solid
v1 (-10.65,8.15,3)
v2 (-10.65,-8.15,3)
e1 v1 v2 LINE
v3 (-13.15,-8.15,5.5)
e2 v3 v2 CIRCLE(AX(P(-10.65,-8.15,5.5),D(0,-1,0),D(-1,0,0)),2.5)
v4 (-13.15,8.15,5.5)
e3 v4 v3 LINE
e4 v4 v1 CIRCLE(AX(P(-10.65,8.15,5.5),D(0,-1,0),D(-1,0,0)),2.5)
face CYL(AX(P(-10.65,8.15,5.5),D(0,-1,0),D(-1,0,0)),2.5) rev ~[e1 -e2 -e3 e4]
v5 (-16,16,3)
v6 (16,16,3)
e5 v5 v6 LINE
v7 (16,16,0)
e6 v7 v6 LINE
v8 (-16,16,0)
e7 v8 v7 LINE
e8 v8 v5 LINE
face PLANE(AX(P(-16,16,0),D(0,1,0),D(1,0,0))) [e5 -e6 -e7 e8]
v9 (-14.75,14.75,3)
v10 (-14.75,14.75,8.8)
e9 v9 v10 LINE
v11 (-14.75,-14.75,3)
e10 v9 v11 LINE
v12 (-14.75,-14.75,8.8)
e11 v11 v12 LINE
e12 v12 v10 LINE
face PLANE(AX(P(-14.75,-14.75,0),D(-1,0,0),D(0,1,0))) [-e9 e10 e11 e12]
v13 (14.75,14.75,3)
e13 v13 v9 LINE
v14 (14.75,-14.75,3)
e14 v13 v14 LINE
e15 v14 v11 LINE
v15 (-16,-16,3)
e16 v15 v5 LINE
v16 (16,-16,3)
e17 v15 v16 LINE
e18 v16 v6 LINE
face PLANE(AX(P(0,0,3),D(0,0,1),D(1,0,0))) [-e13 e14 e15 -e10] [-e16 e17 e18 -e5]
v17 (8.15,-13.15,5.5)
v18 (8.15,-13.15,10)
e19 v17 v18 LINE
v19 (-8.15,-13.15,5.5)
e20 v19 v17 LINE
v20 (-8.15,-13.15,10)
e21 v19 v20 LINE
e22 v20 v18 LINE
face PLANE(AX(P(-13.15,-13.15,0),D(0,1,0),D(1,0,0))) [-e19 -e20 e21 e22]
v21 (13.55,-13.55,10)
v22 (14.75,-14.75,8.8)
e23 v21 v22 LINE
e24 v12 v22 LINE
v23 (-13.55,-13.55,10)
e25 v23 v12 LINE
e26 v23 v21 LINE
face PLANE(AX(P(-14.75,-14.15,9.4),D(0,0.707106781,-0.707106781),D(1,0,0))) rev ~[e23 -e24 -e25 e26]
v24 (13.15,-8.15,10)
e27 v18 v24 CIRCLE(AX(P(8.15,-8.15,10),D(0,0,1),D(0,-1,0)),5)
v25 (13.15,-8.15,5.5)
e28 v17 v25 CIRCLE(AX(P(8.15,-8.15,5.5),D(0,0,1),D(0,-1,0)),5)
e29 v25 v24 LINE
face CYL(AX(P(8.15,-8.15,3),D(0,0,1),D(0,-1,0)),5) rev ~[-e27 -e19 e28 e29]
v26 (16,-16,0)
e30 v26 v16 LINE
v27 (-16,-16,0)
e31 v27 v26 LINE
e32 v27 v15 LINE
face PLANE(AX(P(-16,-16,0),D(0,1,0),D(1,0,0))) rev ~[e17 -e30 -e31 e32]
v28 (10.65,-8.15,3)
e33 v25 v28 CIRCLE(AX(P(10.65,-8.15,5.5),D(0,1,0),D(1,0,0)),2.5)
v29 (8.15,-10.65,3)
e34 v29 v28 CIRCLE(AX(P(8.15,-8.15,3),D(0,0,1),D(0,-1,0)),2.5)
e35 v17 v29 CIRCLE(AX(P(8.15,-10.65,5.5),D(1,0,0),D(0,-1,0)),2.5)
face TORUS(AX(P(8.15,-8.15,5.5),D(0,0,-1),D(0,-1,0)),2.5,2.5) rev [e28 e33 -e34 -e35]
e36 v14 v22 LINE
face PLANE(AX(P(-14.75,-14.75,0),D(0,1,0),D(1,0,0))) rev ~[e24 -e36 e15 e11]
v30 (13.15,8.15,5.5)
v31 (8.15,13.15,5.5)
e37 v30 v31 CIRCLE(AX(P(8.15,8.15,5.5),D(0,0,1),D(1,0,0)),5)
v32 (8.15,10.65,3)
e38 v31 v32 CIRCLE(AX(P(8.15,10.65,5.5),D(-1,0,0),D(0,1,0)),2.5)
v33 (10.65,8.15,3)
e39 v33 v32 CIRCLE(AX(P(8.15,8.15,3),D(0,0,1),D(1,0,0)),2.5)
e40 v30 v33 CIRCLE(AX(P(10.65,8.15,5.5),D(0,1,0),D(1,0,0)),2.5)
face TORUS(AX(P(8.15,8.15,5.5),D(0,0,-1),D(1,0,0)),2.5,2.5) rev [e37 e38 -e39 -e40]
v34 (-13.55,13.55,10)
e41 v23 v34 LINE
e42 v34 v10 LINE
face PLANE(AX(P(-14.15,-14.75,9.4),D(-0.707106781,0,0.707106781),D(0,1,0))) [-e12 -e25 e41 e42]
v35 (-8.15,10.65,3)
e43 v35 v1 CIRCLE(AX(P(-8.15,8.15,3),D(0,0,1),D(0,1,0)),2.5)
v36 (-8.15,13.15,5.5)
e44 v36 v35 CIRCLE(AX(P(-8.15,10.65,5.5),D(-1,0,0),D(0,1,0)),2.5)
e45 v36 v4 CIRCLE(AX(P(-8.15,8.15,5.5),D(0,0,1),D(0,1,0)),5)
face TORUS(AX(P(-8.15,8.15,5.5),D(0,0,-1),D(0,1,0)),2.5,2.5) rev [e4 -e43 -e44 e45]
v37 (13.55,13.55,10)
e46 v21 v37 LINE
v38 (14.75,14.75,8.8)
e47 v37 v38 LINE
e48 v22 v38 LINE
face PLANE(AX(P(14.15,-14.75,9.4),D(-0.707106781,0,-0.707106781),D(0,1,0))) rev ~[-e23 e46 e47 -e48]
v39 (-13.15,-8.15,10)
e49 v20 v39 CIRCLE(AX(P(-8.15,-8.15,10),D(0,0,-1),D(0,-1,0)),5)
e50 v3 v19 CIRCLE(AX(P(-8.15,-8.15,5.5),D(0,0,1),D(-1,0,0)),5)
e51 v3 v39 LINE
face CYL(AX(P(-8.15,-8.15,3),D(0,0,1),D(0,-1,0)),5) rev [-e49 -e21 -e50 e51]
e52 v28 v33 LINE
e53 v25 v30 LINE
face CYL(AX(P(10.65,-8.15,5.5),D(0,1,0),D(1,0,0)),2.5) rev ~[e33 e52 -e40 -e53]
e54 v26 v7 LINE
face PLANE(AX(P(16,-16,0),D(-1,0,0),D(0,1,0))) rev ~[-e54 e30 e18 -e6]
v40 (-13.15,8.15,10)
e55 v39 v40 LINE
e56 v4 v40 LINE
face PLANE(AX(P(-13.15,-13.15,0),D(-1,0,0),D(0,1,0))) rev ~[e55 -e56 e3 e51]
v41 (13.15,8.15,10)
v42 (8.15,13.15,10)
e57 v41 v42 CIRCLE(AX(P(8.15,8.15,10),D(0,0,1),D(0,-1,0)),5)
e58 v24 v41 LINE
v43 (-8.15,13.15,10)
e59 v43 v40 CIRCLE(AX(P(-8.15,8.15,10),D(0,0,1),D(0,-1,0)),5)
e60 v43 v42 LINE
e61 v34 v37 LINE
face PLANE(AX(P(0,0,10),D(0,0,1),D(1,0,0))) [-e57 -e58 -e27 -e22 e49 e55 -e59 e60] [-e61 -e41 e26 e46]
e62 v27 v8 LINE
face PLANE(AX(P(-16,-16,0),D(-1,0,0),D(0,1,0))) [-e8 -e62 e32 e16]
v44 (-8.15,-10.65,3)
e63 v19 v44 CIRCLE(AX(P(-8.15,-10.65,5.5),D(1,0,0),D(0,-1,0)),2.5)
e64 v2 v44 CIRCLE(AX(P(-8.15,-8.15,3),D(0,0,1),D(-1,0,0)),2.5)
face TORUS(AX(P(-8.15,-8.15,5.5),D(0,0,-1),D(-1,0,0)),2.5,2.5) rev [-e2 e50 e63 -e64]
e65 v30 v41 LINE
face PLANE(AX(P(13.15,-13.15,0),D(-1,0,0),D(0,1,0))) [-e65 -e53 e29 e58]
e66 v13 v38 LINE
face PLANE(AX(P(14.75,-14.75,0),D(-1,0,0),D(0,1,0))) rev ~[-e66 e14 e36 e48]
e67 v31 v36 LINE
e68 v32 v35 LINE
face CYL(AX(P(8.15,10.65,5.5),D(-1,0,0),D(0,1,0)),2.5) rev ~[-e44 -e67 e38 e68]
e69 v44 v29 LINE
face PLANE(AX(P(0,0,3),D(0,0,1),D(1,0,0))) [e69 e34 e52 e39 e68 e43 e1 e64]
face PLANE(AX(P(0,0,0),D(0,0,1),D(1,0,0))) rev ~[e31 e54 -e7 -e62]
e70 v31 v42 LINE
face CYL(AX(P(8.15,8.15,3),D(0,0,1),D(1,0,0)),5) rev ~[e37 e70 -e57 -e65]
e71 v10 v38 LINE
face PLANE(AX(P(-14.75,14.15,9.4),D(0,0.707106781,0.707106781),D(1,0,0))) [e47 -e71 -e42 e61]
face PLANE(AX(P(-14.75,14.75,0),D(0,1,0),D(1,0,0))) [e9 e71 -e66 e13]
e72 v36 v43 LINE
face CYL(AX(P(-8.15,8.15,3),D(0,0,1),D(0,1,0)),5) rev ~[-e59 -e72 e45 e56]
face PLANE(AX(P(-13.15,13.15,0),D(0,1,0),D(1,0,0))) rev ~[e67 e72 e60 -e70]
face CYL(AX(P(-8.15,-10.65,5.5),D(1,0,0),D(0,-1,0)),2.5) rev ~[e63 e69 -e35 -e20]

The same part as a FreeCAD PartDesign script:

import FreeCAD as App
import Part
import Sketcher

V = App.Vector


def edges_at(feature, points):
    """Names of the edges that pass closest to the given points."""
    edges = feature.Shape.Edges
    near = lambda p: min(range(len(edges)), key=lambda i: edges[i].distToShape(Part.Vertex(*p))[0])
    return sorted({f"Edge{near(p) + 1}" for p in points})

doc = App.newDocument("Part")
body = doc.addObject("PartDesign::Body", "Body")

# Sketch on XY plane
sketch1 = doc.addObject("Sketcher::SketchObject", "Sketch")
body.addObject(sketch1)
sketch1.AttachmentSupport = (doc.XY_Plane, [""])
sketch1.MapMode = "FlatFace"
sketch1.addGeometry([
    Part.LineSegment(V(-16, 16, 0), V(-16, -16, 0)),
    Part.LineSegment(V(-16, -16, 0), V(16, -16, 0)),
    Part.LineSegment(V(16, -16, 0), V(16, 16, 0)),
    Part.LineSegment(V(16, 16, 0), V(-16, 16, 0)),
], False)
sketch1.addConstraint([
    Sketcher.Constraint("Coincident", 0, 2, 1, 1),
    Sketcher.Constraint("Coincident", 1, 2, 2, 1),
    Sketcher.Constraint("Coincident", 2, 2, 3, 1),
    Sketcher.Constraint("Coincident", 3, 2, 0, 1),
    Sketcher.Constraint("Vertical", 0),
    Sketcher.Constraint("Horizontal", 1),
    Sketcher.Constraint("Vertical", 2),
    Sketcher.Constraint("Horizontal", 3),
    Sketcher.Constraint("Symmetric", 0, 2, 2, 2, -1, 1),
    Sketcher.Constraint("Equal", 3, 0),
    Sketcher.Constraint("DistanceX", 1, 1, 1, 2, 32.0),
])
pad1 = doc.addObject("PartDesign::Pad", "Pad")
body.addObject(pad1)
pad1.Profile = sketch1
pad1.Length = 3

# Sketch on XY plane
sketch2 = doc.addObject("Sketcher::SketchObject", "Sketch001")
body.addObject(sketch2)
sketch2.AttachmentSupport = (doc.XY_Plane, [""])
sketch2.MapMode = "FlatFace"
sketch2.addGeometry([
    Part.LineSegment(V(-14.75, 14.75, 0), V(-14.75, -14.75, 0)),  # 0
    Part.LineSegment(V(-14.75, -14.75, 0), V(14.75, -14.75, 0)),  # 1
    Part.LineSegment(V(14.75, -14.75, 0), V(14.75, 14.75, 0)),  # 2
    Part.LineSegment(V(14.75, 14.75, 0), V(-14.75, 14.75, 0)),  # 3
    Part.LineSegment(V(13.15, -13.15, 0), V(-13.15, -13.15, 0)),  # 4
    Part.LineSegment(V(-13.15, -13.15, 0), V(-13.15, 13.15, 0)),  # 5
    Part.LineSegment(V(-13.15, 13.15, 0), V(13.15, 13.15, 0)),  # 6
    Part.LineSegment(V(13.15, 13.15, 0), V(13.15, -13.15, 0)),  # 7
], False)
sketch2.addConstraint([
    Sketcher.Constraint("Coincident", 0, 2, 1, 1),
    Sketcher.Constraint("Coincident", 1, 2, 2, 1),
    Sketcher.Constraint("Coincident", 2, 2, 3, 1),
    Sketcher.Constraint("Coincident", 3, 2, 0, 1),
    Sketcher.Constraint("Coincident", 4, 2, 5, 1),
    Sketcher.Constraint("Coincident", 5, 2, 6, 1),
    Sketcher.Constraint("Coincident", 6, 2, 7, 1),
    Sketcher.Constraint("Coincident", 7, 2, 4, 1),
    Sketcher.Constraint("Vertical", 0),
    Sketcher.Constraint("Horizontal", 1),
    Sketcher.Constraint("Vertical", 2),
    Sketcher.Constraint("Horizontal", 3),
    Sketcher.Constraint("Horizontal", 4),
    Sketcher.Constraint("Vertical", 5),
    Sketcher.Constraint("Horizontal", 6),
    Sketcher.Constraint("Vertical", 7),
    Sketcher.Constraint("Symmetric", 0, 2, 2, 2, -1, 1),
    Sketcher.Constraint("Symmetric", 4, 2, 6, 2, -1, 1),
    Sketcher.Constraint("Equal", 3, 0),
    Sketcher.Constraint("Equal", 6, 5),
    Sketcher.Constraint("DistanceX", 1, 1, 1, 2, 29.5),
    Sketcher.Constraint("DistanceX", 4, 2, 4, 1, 26.3),
])
pad2 = doc.addObject("PartDesign::Pad", "Pad001")
body.addObject(pad2)
pad2.Profile = sketch2
pad2.Length = 10
doc.recompute()

fillet = doc.addObject("PartDesign::Fillet", "Fillet")
body.addObject(fillet)
fillet.Base = (pad2, edges_at(pad2, [
    (-13.15, 13.15, 6.5),
    (13.15, 13.15, 6.5),
    (13.15, -13.15, 6.5),
    (-13.15, -13.15, 6.5),
]))
fillet.Radius = 5
doc.recompute()

chamfer = doc.addObject("PartDesign::Chamfer", "Chamfer")
body.addObject(chamfer)
chamfer.Base = (fillet, edges_at(fillet, [
    (-14.75, 0, 10),
    (0, -14.75, 10),
    (0, 14.75, 10),
    (14.75, 0, 10),
]))
chamfer.Size = 1.2
doc.recompute()

fillet2 = doc.addObject("PartDesign::Fillet", "Fillet001")
body.addObject(fillet2)
fillet2.Base = (chamfer, edges_at(chamfer, [(11.686, 11.686, 3)]))
fillet2.Radius = 2.5

doc.recompute()
